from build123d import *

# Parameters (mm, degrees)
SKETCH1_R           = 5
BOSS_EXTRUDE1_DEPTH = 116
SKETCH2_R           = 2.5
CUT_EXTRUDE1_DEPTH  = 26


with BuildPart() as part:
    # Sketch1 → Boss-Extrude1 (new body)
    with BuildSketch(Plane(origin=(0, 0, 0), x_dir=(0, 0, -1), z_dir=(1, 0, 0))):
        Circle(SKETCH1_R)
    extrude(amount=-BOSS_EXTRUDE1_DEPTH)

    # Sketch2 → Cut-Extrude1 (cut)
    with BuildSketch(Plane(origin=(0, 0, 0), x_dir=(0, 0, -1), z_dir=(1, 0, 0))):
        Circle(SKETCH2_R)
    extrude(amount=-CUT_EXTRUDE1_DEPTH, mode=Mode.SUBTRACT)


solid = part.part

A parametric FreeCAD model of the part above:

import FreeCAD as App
import Part
import Sketcher
from FreeCAD import Vector

doc = App.newDocument("Part")
body = doc.addObject("PartDesign::Body", "Body")

# Sketch on YZ plane
sketch1 = body.newObject("Sketcher::SketchObject", "Sketch")
sketch1.AttachmentSupport = (doc.getObject("YZ_Plane"), [""])
sketch1.MapMode = "FlatFace"
sketch1.addGeometry(Part.Circle(Vector(0, 0, 0), Vector(0, 0, 1), 5), False)
sketch1.addConstraint([
    Sketcher.Constraint("Coincident", 0, 3, -1, 1),
    Sketcher.Constraint("Diameter", 0, 10.0),
])
pad1 = body.newObject("PartDesign::Pad", "Pad")
pad1.Profile = sketch1
pad1.Length = 116
pad1.Reversed = True

# Sketch on YZ plane
sketch2 = body.newObject("Sketcher::SketchObject", "Sketch001")
sketch2.AttachmentSupport = (doc.getObject("YZ_Plane"), [""])
sketch2.MapMode = "FlatFace"
sketch2.addGeometry(Part.Circle(Vector(0, 0, 0), Vector(0, 0, 1), 2.5), False)
sketch2.addConstraint([
    Sketcher.Constraint("Coincident", 0, 3, -1, 1),
    Sketcher.Constraint("Diameter", 0, 5.0),
])
pocket1 = body.newObject("PartDesign::Pocket", "Pocket")
pocket1.Profile = sketch2
pocket1.Length = 26

doc.recompute()
